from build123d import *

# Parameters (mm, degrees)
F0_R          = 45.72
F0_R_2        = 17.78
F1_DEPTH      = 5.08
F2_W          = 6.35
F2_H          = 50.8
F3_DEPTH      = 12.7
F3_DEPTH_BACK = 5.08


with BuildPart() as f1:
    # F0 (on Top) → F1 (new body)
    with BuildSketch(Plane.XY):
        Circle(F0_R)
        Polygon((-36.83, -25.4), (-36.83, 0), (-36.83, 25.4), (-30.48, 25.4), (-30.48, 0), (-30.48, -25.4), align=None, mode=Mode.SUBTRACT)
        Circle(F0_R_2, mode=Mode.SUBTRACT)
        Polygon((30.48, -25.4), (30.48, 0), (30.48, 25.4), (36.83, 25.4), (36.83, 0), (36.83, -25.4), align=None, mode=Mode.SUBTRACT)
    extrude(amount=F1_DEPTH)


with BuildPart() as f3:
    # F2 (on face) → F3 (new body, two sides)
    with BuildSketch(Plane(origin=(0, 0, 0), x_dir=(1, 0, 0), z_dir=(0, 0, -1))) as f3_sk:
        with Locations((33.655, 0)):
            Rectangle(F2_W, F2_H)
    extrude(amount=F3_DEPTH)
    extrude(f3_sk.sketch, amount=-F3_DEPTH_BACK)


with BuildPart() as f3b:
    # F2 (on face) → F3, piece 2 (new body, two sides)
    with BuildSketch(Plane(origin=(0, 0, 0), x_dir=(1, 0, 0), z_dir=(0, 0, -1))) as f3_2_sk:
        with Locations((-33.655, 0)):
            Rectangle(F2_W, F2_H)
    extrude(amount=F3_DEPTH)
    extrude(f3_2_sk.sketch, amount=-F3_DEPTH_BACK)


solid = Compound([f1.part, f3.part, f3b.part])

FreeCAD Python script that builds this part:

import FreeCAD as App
import Part
import Sketcher
Q = App.Units.Quantity

doc = App.newDocument("Part")
body = doc.addObject("PartDesign::Body", "Body")

sketch1 = doc.addObject("Sketcher::SketchObject", "Sketch")
body.addObject(sketch1)
sketch1.AttachmentSupport = (doc.XY_Plane, [""])
sketch1.MapMode = "FlatFace"
sketch1.addGeometry([
    Part.Circle(App.Vector(0, 0, 0), App.Vector(0, 0, 1), 46),
    Part.LineSegment(App.Vector(-30, -25, 0), App.Vector(-37, -25, 0)),
    Part.LineSegment(App.Vector(-37, -25, 0), App.Vector(-37, 25, 0)),
    Part.LineSegment(App.Vector(-37, 25, 0), App.Vector(-30, 25, 0)),
    Part.LineSegment(App.Vector(-30, 25, 0), App.Vector(-30, -25, 0)),
    Part.Circle(App.Vector(0, 0, 0), App.Vector(0, 0, 1), 18),
    Part.LineSegment(App.Vector(37, -25, 0), App.Vector(30, -25, 0)),
    Part.LineSegment(App.Vector(30, -25, 0), App.Vector(30, 25, 0)),
    Part.LineSegment(App.Vector(30, 25, 0), App.Vector(37, 25, 0)),
    Part.LineSegment(App.Vector(37, 25, 0), App.Vector(37, -25, 0)),
], False)
sketch1.addConstraint([
    Sketcher.Constraint("Coincident", 1, 2, 2, 1),
    Sketcher.Constraint("Coincident", 2, 2, 3, 1),
    Sketcher.Constraint("Coincident", 3, 2, 4, 1),
    Sketcher.Constraint("Coincident", 4, 2, 1, 1),
    Sketcher.Constraint("Coincident", 6, 2, 7, 1),
    Sketcher.Constraint("Coincident", 7, 2, 8, 1),
    Sketcher.Constraint("Coincident", 8, 2, 9, 1),
    Sketcher.Constraint("Coincident", 9, 2, 6, 1),
    Sketcher.Constraint("Horizontal", 1),
    Sketcher.Constraint("Vertical", 2),
    Sketcher.Constraint("Horizontal", 3),
    Sketcher.Constraint("Vertical", 4),
    Sketcher.Constraint("Horizontal", 6),
    Sketcher.Constraint("Vertical", 7),
    Sketcher.Constraint("Horizontal", 8),
    Sketcher.Constraint("Vertical", 9),
    Sketcher.Constraint("Coincident", 0, 3, -1, 1),
    Sketcher.Constraint("Coincident", 5, 3, -1, 1),
    Sketcher.Constraint("Symmetric", 3, 2, 6, 2, -1, 1),
    Sketcher.Constraint("Symmetric", 1, 2, 8, 2, -1, 1),
    Sketcher.Constraint("Horizontal", 4, 2, 6, 2),
    Sketcher.Constraint("Diameter", 0, Q("3.6 in")),
    Sketcher.Constraint("Diameter", 5, Q("1.4 in")),
    Sketcher.Constraint("DistanceY", 2, 1, 2, 2, Q("2 in")),
    Sketcher.Constraint("DistanceX", 1, 2, 1, 1, Q("0.25 in")),
    Sketcher.Constraint("DistanceX", 3, 2, -1, 1, Q("1.2 in")),
])
pad1 = doc.addObject("PartDesign::Pad", "Pad")
body.addObject(pad1)
pad1.Profile = sketch1
pad1.Length = Q("0.2 in")
body2 = doc.addObject("PartDesign::Body", "Body001")

sketch2 = doc.addObject("Sketcher::SketchObject", "Sketch001")
body2.addObject(sketch2)
sketch2.AttachmentSupport = (doc.getObject("XY_Plane001"), [""])
sketch2.MapMode = "FlatFace"
sketch2.addGeometry([
    Part.LineSegment(App.Vector(30, -25, 0), App.Vector(30, 25, 0)),
    Part.LineSegment(App.Vector(30, 25, 0), App.Vector(37, 25, 0)),
    Part.LineSegment(App.Vector(37, 25, 0), App.Vector(37, -25, 0)),
    Part.LineSegment(App.Vector(37, -25, 0), App.Vector(30, -25, 0)),
], False)
sketch2.addConstraint([
    Sketcher.Constraint("Coincident", 0, 2, 1, 1),
    Sketcher.Constraint("Coincident", 1, 2, 2, 1),
    Sketcher.Constraint("Coincident", 2, 2, 3, 1),
    Sketcher.Constraint("Coincident", 3, 2, 0, 1),
    Sketcher.Constraint("Vertical", 0),
    Sketcher.Constraint("Horizontal", 1),
    Sketcher.Constraint("Vertical", 2),
    Sketcher.Constraint("Horizontal", 3),
    Sketcher.Constraint("DistanceY", 0, 1, 0, 2, Q("2 in")),
    Sketcher.Constraint("DistanceY", -1, 1, 0, 2, Q("1 in")),
    Sketcher.Constraint("DistanceX", 1, 1, 1, 2, Q("0.25 in")),
    Sketcher.Constraint("DistanceX", -1, 1, 0, 2, Q("1.2 in")),
])
pad2 = doc.addObject("PartDesign::Pad", "Pad001")
body2.addObject(pad2)
pad2.Profile = sketch2
pad2.Type = "TwoLengths"
pad2.Length = Q("0.5 in")
pad2.Length2 = Q("0.2 in")
pad2.Reversed = True
body3 = doc.addObject("PartDesign::Body", "Body002")

sketch3 = doc.addObject("Sketcher::SketchObject", "Sketch002")
body3.addObject(sketch3)
sketch3.AttachmentSupport = (doc.getObject("XY_Plane002"), [""])
sketch3.MapMode = "FlatFace"
sketch3.addGeometry([
    Part.LineSegment(App.Vector(-37, -25, 0), App.Vector(-37, 25, 0)),
    Part.LineSegment(App.Vector(-37, 25, 0), App.Vector(-30, 25, 0)),
    Part.LineSegment(App.Vector(-30, 25, 0), App.Vector(-30, -25, 0)),
    Part.LineSegment(App.Vector(-30, -25, 0), App.Vector(-37, -25, 0)),
], False)
sketch3.addConstraint([
    Sketcher.Constraint("Coincident", 0, 2, 1, 1),
    Sketcher.Constraint("Coincident", 1, 2, 2, 1),
    Sketcher.Constraint("Coincident", 2, 2, 3, 1),
    Sketcher.Constraint("Coincident", 3, 2, 0, 1),
    Sketcher.Constraint("Vertical", 0),
    Sketcher.Constraint("Horizontal", 1),
    Sketcher.Constraint("Vertical", 2),
    Sketcher.Constraint("Horizontal", 3),
    Sketcher.Constraint("DistanceY", 0, 1, 0, 2, Q("2 in")),
    Sketcher.Constraint("DistanceY", -1, 1, 0, 2, Q("1 in")),
    Sketcher.Constraint("DistanceX", 1, 1, 1, 2, Q("0.25 in")),
    Sketcher.Constraint("DistanceX", 1, 2, -1, 1, Q("1.2 in")),
])
pad3 = doc.addObject("PartDesign::Pad", "Pad002")
body3.addObject(pad3)
pad3.Profile = sketch3
pad3.Type = "TwoLengths"
pad3.Length = Q("0.5 in")
pad3.Length2 = Q("0.2 in")
pad3.Reversed = True

doc.recompute()
